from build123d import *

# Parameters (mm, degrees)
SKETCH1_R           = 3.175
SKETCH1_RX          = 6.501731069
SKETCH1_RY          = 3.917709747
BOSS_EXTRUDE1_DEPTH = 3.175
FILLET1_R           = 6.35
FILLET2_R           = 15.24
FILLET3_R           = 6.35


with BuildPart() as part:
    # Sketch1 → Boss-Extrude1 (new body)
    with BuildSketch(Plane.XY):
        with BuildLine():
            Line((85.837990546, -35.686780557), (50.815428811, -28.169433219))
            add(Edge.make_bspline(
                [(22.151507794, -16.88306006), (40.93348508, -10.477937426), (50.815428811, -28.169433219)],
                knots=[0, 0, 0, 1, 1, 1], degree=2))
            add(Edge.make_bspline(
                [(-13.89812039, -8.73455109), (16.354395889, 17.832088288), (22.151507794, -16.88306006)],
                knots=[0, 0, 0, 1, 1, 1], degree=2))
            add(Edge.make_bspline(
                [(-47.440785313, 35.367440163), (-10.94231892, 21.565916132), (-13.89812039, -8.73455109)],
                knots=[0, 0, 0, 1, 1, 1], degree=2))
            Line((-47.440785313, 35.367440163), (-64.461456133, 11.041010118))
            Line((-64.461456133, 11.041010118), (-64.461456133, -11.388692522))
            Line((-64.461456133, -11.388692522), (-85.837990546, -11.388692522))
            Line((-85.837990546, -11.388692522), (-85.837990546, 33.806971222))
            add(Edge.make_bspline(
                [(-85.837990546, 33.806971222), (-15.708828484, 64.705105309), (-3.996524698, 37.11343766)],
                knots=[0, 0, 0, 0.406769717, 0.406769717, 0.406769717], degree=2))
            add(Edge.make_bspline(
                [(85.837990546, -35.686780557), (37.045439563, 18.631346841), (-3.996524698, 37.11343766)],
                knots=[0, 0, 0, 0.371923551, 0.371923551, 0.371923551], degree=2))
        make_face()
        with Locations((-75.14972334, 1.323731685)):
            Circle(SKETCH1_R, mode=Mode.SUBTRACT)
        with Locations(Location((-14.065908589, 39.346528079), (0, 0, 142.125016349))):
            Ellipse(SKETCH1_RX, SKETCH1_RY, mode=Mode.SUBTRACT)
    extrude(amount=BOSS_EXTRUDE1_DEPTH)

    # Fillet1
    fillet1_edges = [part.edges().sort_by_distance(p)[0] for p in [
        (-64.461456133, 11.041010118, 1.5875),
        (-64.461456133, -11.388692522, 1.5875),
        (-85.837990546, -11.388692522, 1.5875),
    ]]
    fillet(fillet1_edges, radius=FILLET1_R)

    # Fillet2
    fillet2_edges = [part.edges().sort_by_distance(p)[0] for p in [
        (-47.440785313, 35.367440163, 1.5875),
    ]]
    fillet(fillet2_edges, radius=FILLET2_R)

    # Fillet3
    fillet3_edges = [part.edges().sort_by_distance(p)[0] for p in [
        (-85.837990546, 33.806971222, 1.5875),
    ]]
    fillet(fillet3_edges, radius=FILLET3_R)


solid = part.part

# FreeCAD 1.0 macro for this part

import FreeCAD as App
import Part
import Sketcher

V = App.Vector
Q = App.Units.Quantity


def edges_at(feature, points):
    """Names of the edges that pass closest to the given points."""
    edges = feature.Shape.Edges
    near = lambda p: min(range(len(edges)), key=lambda i: edges[i].distToShape(Part.Vertex(*p))[0])
    return sorted({f"Edge{near(p) + 1}" for p in points})

doc = App.newDocument("Part")
params = doc.addObject("Spreadsheet::Sheet", "Params")
for row, (alias, value) in enumerate([
    ("sketch1_diameter", "0.25 in"),
    ("pad1_length", "0.125 in"),
    ("fillet_radius", "0.25 in"),
    ("fillet2_radius", "0.6 in"),
    ("fillet3_radius", "0.25 in"),
], start=1):
    params.set(f"A{row}", alias)
    params.set(f"B{row}", "=" + value)
    params.setAlias(f"B{row}", alias)

body = doc.addObject("PartDesign::Body", "Body")

sketch1 = body.newObject("Sketcher::SketchObject", "Sketch")
sketch1.AttachmentSupport = (doc.getObject("XY_Plane"), [""])
sketch1.MapMode = "FlatFace"
sketch1.addGeometry(Part.LineSegment(V(50.815429, -28.169433, 0), V(85.837991, -35.686781, 0)), False)
sketch1.addGeometry(Part.BSplineCurve([V(85.837991, -35.686781, 0), V(37.04544, 18.631347, 0), V(-3.996525, 37.113438, 0)], [3, 3], [0, 0.371923551], False, 2, [1, 1, 1], False), False)
sketch1.addGeometry(Part.BSplineCurve([V(-85.837991, 33.806971, 0), V(-15.708828, 64.705105, 0), V(-3.996525, 37.113438, 0)], [3, 3], [0, 0.406769717], False, 2, [1, 1, 1], False), False)
sketch1.addGeometry(Part.LineSegment(V(-85.837991, 33.806971, 0), V(-85.837991, -11.388693, 0)), False)
sketch1.addGeometry(Part.LineSegment(V(-85.837991, -11.388693, 0), V(-64.461456, -11.388693, 0)), False)
sketch1.addGeometry(Part.LineSegment(V(-64.461456, -11.388693, 0), V(-64.461456, 11.04101, 0)), False)
sketch1.addGeometry(Part.LineSegment(V(-64.461456, 11.04101, 0), V(-47.440785, 35.36744, 0)), False)
sketch1.addGeometry(Part.BSplineCurve([V(-47.440785, 35.36744, 0), V(-10.942319, 21.565916, 0), V(-13.89812, -8.734551, 0)], [3, 3], [0, 1], False, 2, [1, 1, 1], False), False)
sketch1.addGeometry(Part.BSplineCurve([V(-13.89812, -8.734551, 0), V(16.354396, 17.832088, 0), V(22.151508, -16.88306, 0)], [3, 3], [0, 1], False, 2, [1, 1, 1], False), False)
sketch1.addGeometry(Part.BSplineCurve([V(22.151508, -16.88306, 0), V(40.933485, -10.477937, 0), V(50.815429, -28.169433, 0)], [3, 3], [0, 1], False, 2, [1, 1, 1], False), False)
sketch1.addGeometry(Part.Circle(V(-75.149723, 1.323732, 0), V(0, 0, 1), 3.175), False)
sketch1.addGeometry(Part.Ellipse(V(-19.198064, 43.338205, 0), V(-16.47115, 36.254075, 0), V(-14.065909, 39.346528, 0)), False)
sketch1.addConstraint(Sketcher.Constraint("Block", 1))
sketch1.addConstraint(Sketcher.Constraint("Block", 2))
sketch1.addConstraint(Sketcher.Constraint("Block", 7))
sketch1.addConstraint(Sketcher.Constraint("Block", 8))
sketch1.addConstraint(Sketcher.Constraint("Block", 9))
sketch1.addConstraint(Sketcher.Constraint("Block", 11))
sketch1.addConstraint(Sketcher.Constraint("Coincident", 0, 2, 1, 1))
sketch1.addConstraint(Sketcher.Constraint("Coincident", 2, 1, 3, 1))
sketch1.addConstraint(Sketcher.Constraint("Coincident", 3, 2, 4, 1))
sketch1.addConstraint(Sketcher.Constraint("Coincident", 4, 2, 5, 1))
sketch1.addConstraint(Sketcher.Constraint("Coincident", 5, 2, 6, 1))
sketch1.addConstraint(Sketcher.Constraint("Coincident", 6, 2, 7, 1))
sketch1.addConstraint(Sketcher.Constraint("Coincident", 9, 2, 0, 1))
sketch1.addConstraint(Sketcher.Constraint("Vertical", 3))
sketch1.addConstraint(Sketcher.Constraint("Horizontal", 4))
sketch1.addConstraint(Sketcher.Constraint("Vertical", 5))
sketch1.addConstraint(Sketcher.Constraint("Diameter", 10, Q("0.25 in")))
sketch1.addConstraint(Sketcher.Constraint("DistanceX", 4, 1, 4, 2, 21.376534))
sketch1.addConstraint(Sketcher.Constraint("DistanceY", 3, 2, 3, 1, 45.195664))
sketch1.addConstraint(Sketcher.Constraint("DistanceY", 5, 1, 5, 2, 22.429703))
sketch1.addConstraint(Sketcher.Constraint("DistanceY", -1, 1, 10, 3, 1.323732))
sketch1.addConstraint(Sketcher.Constraint("DistanceX", 10, 3, 6, 2, 27.708938))
sketch1.setExpression("Constraints[16]", "Params.sketch1_diameter")
pad1 = body.newObject("PartDesign::Pad", "Pad")
pad1.Profile = sketch1
pad1.setExpression("Length", "Params.pad1_length")
doc.recompute()

fillet = body.newObject("PartDesign::Fillet", "Fillet")
fillet.Base = (pad1, edges_at(pad1, [(-64.461, 11.041, 1.587), (-64.461, -11.389, 1.587), (-85.838, -11.389, 1.587)]))
fillet.setExpression("Radius", "Params.fillet_radius")
doc.recompute()

fillet2 = body.newObject("PartDesign::Fillet", "Fillet001")
fillet2.Base = (fillet, edges_at(fillet, [(-47.441, 35.367, 1.587)]))
fillet2.setExpression("Radius", "Params.fillet2_radius")
doc.recompute()

fillet3 = body.newObject("PartDesign::Fillet", "Fillet002")
fillet3.Base = (fillet2, edges_at(fillet2, [(-85.838, 33.807, 1.587)]))
fillet3.setExpression("Radius", "Params.fillet3_radius")

doc.recompute()
